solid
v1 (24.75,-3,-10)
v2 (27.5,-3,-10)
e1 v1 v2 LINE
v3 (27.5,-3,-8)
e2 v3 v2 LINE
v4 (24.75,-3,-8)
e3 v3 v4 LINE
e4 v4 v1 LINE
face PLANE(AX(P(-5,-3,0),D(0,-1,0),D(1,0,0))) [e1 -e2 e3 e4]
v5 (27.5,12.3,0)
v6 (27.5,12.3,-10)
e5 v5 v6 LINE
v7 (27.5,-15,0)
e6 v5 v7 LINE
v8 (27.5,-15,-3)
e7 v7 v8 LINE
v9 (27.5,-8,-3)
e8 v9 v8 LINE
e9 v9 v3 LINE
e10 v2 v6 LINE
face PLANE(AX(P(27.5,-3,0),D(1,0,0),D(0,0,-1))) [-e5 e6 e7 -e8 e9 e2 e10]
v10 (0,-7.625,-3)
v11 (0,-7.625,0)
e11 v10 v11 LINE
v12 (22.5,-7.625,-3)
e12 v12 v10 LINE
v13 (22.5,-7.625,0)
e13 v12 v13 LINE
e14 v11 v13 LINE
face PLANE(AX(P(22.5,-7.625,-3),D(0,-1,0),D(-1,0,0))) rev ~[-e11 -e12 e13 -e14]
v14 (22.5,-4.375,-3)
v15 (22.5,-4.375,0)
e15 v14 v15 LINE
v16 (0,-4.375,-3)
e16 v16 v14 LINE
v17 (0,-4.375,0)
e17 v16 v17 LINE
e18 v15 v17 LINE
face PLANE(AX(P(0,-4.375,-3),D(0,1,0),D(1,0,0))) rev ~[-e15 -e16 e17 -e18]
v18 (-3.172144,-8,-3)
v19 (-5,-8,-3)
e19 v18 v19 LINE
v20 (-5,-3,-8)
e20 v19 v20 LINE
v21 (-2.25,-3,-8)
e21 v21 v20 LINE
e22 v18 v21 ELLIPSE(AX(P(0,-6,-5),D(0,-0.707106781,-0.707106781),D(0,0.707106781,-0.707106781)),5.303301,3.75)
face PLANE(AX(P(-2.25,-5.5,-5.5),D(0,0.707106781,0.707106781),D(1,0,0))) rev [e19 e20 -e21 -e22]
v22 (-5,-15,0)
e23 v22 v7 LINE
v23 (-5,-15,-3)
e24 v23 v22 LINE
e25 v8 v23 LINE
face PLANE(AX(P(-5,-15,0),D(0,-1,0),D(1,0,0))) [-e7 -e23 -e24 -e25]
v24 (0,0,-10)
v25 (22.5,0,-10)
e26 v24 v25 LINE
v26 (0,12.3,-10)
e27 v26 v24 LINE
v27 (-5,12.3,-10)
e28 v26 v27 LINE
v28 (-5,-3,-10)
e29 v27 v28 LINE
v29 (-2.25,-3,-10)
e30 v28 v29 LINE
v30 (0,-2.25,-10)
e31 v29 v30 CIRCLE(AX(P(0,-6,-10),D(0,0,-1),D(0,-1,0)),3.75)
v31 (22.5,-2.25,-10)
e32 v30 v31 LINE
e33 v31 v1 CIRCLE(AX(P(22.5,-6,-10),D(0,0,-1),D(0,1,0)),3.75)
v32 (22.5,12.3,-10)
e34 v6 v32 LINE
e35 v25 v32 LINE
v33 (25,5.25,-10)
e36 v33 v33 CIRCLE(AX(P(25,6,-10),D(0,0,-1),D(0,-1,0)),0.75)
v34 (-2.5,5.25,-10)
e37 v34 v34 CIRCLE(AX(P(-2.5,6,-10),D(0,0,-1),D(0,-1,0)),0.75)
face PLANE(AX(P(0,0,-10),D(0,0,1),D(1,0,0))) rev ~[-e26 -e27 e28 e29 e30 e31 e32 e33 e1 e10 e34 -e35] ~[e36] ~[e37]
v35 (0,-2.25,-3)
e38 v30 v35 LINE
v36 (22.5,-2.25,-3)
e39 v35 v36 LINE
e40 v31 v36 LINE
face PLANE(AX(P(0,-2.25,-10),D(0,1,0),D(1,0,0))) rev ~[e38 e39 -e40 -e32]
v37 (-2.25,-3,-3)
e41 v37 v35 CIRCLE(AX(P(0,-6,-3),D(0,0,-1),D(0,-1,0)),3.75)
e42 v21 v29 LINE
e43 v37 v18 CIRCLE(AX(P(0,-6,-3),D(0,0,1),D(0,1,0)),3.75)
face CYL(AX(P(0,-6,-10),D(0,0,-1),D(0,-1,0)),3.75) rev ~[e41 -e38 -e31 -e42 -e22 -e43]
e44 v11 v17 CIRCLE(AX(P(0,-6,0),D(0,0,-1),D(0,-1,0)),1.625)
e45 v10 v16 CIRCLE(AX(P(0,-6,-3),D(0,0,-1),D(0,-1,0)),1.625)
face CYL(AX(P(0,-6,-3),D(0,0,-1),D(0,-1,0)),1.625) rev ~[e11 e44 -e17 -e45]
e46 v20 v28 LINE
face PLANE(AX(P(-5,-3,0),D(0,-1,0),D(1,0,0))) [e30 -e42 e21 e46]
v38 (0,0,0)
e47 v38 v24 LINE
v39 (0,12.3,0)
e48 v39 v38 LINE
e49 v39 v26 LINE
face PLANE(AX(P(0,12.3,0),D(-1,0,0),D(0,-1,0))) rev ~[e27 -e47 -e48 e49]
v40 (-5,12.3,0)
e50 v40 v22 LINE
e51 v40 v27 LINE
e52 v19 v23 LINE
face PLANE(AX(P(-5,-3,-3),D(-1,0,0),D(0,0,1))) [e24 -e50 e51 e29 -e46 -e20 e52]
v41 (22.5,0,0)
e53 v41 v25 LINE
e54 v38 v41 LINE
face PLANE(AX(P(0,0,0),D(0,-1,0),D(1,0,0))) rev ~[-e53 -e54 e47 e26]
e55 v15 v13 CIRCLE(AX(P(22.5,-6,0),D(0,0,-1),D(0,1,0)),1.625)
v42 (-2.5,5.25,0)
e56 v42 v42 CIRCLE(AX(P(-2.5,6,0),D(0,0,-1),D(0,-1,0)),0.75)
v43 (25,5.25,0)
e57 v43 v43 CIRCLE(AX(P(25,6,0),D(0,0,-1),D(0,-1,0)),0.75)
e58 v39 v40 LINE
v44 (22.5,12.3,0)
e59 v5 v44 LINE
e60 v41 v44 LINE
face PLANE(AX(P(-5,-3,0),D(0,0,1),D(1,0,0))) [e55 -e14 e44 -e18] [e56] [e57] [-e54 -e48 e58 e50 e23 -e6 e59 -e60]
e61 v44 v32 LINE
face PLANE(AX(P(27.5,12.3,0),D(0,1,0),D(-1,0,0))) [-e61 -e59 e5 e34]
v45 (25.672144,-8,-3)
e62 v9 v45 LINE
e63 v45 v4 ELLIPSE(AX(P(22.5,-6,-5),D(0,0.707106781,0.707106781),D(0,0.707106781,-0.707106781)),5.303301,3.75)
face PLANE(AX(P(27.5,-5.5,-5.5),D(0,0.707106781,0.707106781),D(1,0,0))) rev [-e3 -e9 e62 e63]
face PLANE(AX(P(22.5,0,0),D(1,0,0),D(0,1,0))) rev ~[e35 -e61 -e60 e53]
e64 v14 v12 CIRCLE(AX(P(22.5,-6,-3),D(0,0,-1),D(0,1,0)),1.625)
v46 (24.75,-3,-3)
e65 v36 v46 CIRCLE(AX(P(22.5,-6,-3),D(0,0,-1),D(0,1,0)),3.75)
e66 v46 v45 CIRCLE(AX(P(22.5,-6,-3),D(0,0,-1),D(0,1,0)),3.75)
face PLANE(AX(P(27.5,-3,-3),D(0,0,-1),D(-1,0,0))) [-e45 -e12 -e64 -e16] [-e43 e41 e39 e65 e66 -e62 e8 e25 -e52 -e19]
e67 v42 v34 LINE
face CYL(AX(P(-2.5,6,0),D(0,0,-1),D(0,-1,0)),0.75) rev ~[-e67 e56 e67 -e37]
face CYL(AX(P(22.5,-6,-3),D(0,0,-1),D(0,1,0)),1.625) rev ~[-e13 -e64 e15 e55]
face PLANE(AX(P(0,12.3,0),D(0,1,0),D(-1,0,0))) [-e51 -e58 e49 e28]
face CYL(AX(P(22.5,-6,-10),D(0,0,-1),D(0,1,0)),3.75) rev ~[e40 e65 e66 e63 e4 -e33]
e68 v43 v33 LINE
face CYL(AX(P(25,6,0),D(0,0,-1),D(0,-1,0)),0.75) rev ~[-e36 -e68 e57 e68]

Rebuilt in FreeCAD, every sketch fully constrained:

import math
import FreeCAD as App
import Part
import Sketcher
from FreeCAD import Vector
Q = App.Units.Quantity


def edges_at(feature, points):
    """Names of the edges that pass closest to the given points."""
    edges = feature.Shape.Edges
    near = lambda p: min(range(len(edges)), key=lambda i: edges[i].distToShape(Part.Vertex(*p))[0])
    return sorted({f"Edge{near(p) + 1}" for p in points})


def add_polygon(sketch, points):
    """Adds a closed chain of lines whose ends are joined by coincident constraints."""
    first, n = sketch.GeometryCount, len(points)
    for a, b in zip(points, points[1:] + points[:1]):
        sketch.addGeometry(Part.LineSegment(App.Vector(*a, 0), App.Vector(*b, 0)), False)
    for i in range(n):
        sketch.addConstraint(Sketcher.Constraint("Coincident", first + i, 2, first + (i + 1) % n, 1))

doc = App.newDocument("Part")
body = doc.addObject("PartDesign::Body", "Body")

sketch1 = body.newObject("Sketcher::SketchObject", "Sketch")
sketch1.AttachmentSupport = (doc.getObject("XY_Plane"), [""])
sketch1.MapMode = "FlatFace"
add_polygon(sketch1, [(22.5, 0), (0, 0), (0, 12.3), (-5, 12.3), (-5, -3), (27.5, -3), (27.5, 12.3), (22.5, 12.3)])
sketch1.addConstraint([
    Sketcher.Constraint("Horizontal", 0),
    Sketcher.Constraint("Vertical", 1),
    Sketcher.Constraint("Horizontal", 2),
    Sketcher.Constraint("Vertical", 3),
    Sketcher.Constraint("Horizontal", 4),
    Sketcher.Constraint("Vertical", 5),
    Sketcher.Constraint("Horizontal", 6),
    Sketcher.Constraint("Vertical", 7),
    Sketcher.Constraint("Coincident", 0, 2, -1, 1),
    Sketcher.Constraint("Horizontal", 2, 2, 5, 2),
    Sketcher.Constraint("Equal", 2, 6),
    Sketcher.Constraint("DistanceX", 0, 2, 0, 1, Q("22.5 mm")),
    Sketcher.Constraint("DistanceX", 4, 1, 4, 2, Q("32.5 mm")),
    Sketcher.Constraint("DistanceY", 1, 1, 1, 2, Q("12.3 mm")),
    Sketcher.Constraint("DistanceY", 3, 2, 3, 1, Q("15.3 mm")),
])
pad1 = body.newObject("PartDesign::Pad", "Pad")
pad1.Profile = sketch1
pad1.Length = 10
pad1.Reversed = True

sketch2 = body.newObject("Sketcher::SketchObject", "Sketch001")
sketch2.AttachmentSupport = (doc.getObject("XY_Plane"), [""])
sketch2.MapMode = "FlatFace"
sketch2.addGeometry(Part.Circle(Vector(25, 6, 0), Vector(0, 0, 1), 0.75), False)
sketch2.addConstraint([
    Sketcher.Constraint("Diameter", 0, Q("1.5 mm")),
    Sketcher.Constraint("DistanceX", -1, 1, 0, 3, Q("25 mm")),
    Sketcher.Constraint("DistanceY", -1, 1, 0, 3, Q("6 mm")),
])
doc.recompute()
hole = body.newObject("PartDesign::Hole", "Hole")
hole.Profile = sketch2
hole.ThreadType = "None"
hole.Diameter = 1.5
hole.DepthType = "Dimension"
hole.Depth = 10
hole.DrillPoint = "Angled"
hole.DrillPointAngle = 118

sketch3 = body.newObject("Sketcher::SketchObject", "Sketch002")
sketch3.AttachmentSupport = (doc.getObject("XY_Plane"), [""])
sketch3.MapMode = "FlatFace"
sketch3.addGeometry(Part.Circle(Vector(-2.5, 6, 0), Vector(0, 0, 1), 0.75), False)
sketch3.addConstraint([
    Sketcher.Constraint("Diameter", 0, Q("1.5 mm")),
    Sketcher.Constraint("DistanceY", -1, 1, 0, 3, Q("6 mm")),
    Sketcher.Constraint("DistanceX", 0, 3, -1, 1, Q("2.5 mm")),
])
doc.recompute()
hole2 = body.newObject("PartDesign::Hole", "Hole001")
hole2.Profile = sketch3
hole2.ThreadType = "None"
hole2.Diameter = 1.5
hole2.DepthType = "Dimension"
hole2.Depth = 10
hole2.DrillPoint = "Angled"
hole2.DrillPointAngle = 118

sketch4 = body.newObject("Sketcher::SketchObject", "Sketch003")
sketch4.AttachmentSupport = (doc.getObject("XZ_Plane"), [""])
sketch4.MapMode = "FlatFace"
sketch4.AttachmentOffset = App.Placement(Vector(0, 0, 3), App.Rotation())
add_polygon(sketch4, [(27.5, -3), (27.5, 0), (-5, 0), (-5, -3)])
sketch4.addConstraint([
    Sketcher.Constraint("Vertical", 0),
    Sketcher.Constraint("Horizontal", 1),
    Sketcher.Constraint("Vertical", 2),
    Sketcher.Constraint("Horizontal", 3),
    Sketcher.Constraint("PointOnObject", 0, 2, -1),
    Sketcher.Constraint("DistanceY", 0, 1, 0, 2, Q("3 mm")),
    Sketcher.Constraint("DistanceX", 1, 2, 1, 1, Q("32.5 mm")),
    Sketcher.Constraint("DistanceX", 1, 2, -1, 1, Q("5 mm")),
])
pad2 = body.newObject("PartDesign::Pad", "Pad001")
pad2.Profile = sketch4
pad2.Length = 12

sketch5 = body.newObject("Sketcher::SketchObject", "Sketch004")
sketch5.AttachmentSupport = (doc.getObject("XY_Plane"), [""])
sketch5.MapMode = "FlatFace"
sketch5.AttachmentOffset = App.Placement(Vector(0, 0, -3), App.Rotation())
sketch5.addGeometry([
    Part.ArcOfCircle(Part.Circle(Vector(0, -6, 0), Vector(0, 0, 1), 1.625), math.radians(90), math.radians(270)),
    Part.LineSegment(Vector(0, -4.375, 0), Vector(22.5, -4.375, 0)),
    Part.ArcOfCircle(Part.Circle(Vector(22.5, -6, 0), Vector(0, 0, 1), 1.625), math.radians(-90), math.radians(90)),
    Part.LineSegment(Vector(22.5, -7.625, 0), Vector(0, -7.625, 0)),
], False)
sketch5.addConstraint([
    Sketcher.Constraint("Tangent", 0, 1, 1, 1),
    Sketcher.Constraint("Tangent", 1, 2, 2, 2),
    Sketcher.Constraint("Tangent", 2, 1, 3, 1),
    Sketcher.Constraint("Tangent", 3, 2, 0, 2),
    Sketcher.Constraint("Horizontal", 1),
    Sketcher.Constraint("Horizontal", 3),
    Sketcher.Constraint("PointOnObject", 0, 3, -2),
    Sketcher.Constraint("DistanceX", 1, 1, 1, 2, Q("22.5 mm")),
    Sketcher.Constraint("Radius", 0, Q("1.625 mm")),
    Sketcher.Constraint("DistanceY", 0, 3, -1, 1, Q("6 mm")),
])
pocket1 = body.newObject("PartDesign::Pocket", "Pocket")
pocket1.Profile = sketch5
pocket1.Type = "ThroughAll"
pocket1.Reversed = True

sketch6 = body.newObject("Sketcher::SketchObject", "Sketch005")
sketch6.AttachmentSupport = (doc.getObject("XY_Plane"), [""])
sketch6.MapMode = "FlatFace"
sketch6.AttachmentOffset = App.Placement(Vector(0, 0, -10), App.Rotation())
sketch6.addGeometry([
    Part.ArcOfCircle(Part.Circle(Vector(22.5, -6, 0), Vector(0, 0, 1), 3.75), math.radians(-90), math.radians(90)),
    Part.LineSegment(Vector(22.5, -9.75, 0), Vector(0, -9.75, 0)),
    Part.ArcOfCircle(Part.Circle(Vector(0, -6, 0), Vector(0, 0, 1), 3.75), math.radians(90), math.radians(270)),
    Part.LineSegment(Vector(0, -2.25, 0), Vector(22.5, -2.25, 0)),
], False)
sketch6.addConstraint([
    Sketcher.Constraint("Tangent", 0, 1, 1, 1),
    Sketcher.Constraint("Tangent", 1, 2, 2, 2),
    Sketcher.Constraint("Tangent", 2, 1, 3, 1),
    Sketcher.Constraint("Tangent", 3, 2, 0, 2),
    Sketcher.Constraint("Horizontal", 1),
    Sketcher.Constraint("Horizontal", 3),
    Sketcher.Constraint("PointOnObject", 2, 3, -2),
    Sketcher.Constraint("Radius", 0, Q("3.75 mm")),
    Sketcher.Constraint("DistanceX", 1, 2, 1, 1, Q("22.5 mm")),
    Sketcher.Constraint("DistanceY", 0, 3, -1, 1, Q("6 mm")),
])
pocket2 = body.newObject("PartDesign::Pocket", "Pocket001")
pocket2.Profile = sketch6
pocket2.Length = 7
pocket2.Reversed = True
doc.recompute()

chamfer = body.newObject("PartDesign::Chamfer", "Chamfer")
chamfer.Base = (pocket2, edges_at(pocket2, [(-3.625, -3, -3), (26.125, -3, -3)]))
chamfer.Size = 5

doc.recompute()
